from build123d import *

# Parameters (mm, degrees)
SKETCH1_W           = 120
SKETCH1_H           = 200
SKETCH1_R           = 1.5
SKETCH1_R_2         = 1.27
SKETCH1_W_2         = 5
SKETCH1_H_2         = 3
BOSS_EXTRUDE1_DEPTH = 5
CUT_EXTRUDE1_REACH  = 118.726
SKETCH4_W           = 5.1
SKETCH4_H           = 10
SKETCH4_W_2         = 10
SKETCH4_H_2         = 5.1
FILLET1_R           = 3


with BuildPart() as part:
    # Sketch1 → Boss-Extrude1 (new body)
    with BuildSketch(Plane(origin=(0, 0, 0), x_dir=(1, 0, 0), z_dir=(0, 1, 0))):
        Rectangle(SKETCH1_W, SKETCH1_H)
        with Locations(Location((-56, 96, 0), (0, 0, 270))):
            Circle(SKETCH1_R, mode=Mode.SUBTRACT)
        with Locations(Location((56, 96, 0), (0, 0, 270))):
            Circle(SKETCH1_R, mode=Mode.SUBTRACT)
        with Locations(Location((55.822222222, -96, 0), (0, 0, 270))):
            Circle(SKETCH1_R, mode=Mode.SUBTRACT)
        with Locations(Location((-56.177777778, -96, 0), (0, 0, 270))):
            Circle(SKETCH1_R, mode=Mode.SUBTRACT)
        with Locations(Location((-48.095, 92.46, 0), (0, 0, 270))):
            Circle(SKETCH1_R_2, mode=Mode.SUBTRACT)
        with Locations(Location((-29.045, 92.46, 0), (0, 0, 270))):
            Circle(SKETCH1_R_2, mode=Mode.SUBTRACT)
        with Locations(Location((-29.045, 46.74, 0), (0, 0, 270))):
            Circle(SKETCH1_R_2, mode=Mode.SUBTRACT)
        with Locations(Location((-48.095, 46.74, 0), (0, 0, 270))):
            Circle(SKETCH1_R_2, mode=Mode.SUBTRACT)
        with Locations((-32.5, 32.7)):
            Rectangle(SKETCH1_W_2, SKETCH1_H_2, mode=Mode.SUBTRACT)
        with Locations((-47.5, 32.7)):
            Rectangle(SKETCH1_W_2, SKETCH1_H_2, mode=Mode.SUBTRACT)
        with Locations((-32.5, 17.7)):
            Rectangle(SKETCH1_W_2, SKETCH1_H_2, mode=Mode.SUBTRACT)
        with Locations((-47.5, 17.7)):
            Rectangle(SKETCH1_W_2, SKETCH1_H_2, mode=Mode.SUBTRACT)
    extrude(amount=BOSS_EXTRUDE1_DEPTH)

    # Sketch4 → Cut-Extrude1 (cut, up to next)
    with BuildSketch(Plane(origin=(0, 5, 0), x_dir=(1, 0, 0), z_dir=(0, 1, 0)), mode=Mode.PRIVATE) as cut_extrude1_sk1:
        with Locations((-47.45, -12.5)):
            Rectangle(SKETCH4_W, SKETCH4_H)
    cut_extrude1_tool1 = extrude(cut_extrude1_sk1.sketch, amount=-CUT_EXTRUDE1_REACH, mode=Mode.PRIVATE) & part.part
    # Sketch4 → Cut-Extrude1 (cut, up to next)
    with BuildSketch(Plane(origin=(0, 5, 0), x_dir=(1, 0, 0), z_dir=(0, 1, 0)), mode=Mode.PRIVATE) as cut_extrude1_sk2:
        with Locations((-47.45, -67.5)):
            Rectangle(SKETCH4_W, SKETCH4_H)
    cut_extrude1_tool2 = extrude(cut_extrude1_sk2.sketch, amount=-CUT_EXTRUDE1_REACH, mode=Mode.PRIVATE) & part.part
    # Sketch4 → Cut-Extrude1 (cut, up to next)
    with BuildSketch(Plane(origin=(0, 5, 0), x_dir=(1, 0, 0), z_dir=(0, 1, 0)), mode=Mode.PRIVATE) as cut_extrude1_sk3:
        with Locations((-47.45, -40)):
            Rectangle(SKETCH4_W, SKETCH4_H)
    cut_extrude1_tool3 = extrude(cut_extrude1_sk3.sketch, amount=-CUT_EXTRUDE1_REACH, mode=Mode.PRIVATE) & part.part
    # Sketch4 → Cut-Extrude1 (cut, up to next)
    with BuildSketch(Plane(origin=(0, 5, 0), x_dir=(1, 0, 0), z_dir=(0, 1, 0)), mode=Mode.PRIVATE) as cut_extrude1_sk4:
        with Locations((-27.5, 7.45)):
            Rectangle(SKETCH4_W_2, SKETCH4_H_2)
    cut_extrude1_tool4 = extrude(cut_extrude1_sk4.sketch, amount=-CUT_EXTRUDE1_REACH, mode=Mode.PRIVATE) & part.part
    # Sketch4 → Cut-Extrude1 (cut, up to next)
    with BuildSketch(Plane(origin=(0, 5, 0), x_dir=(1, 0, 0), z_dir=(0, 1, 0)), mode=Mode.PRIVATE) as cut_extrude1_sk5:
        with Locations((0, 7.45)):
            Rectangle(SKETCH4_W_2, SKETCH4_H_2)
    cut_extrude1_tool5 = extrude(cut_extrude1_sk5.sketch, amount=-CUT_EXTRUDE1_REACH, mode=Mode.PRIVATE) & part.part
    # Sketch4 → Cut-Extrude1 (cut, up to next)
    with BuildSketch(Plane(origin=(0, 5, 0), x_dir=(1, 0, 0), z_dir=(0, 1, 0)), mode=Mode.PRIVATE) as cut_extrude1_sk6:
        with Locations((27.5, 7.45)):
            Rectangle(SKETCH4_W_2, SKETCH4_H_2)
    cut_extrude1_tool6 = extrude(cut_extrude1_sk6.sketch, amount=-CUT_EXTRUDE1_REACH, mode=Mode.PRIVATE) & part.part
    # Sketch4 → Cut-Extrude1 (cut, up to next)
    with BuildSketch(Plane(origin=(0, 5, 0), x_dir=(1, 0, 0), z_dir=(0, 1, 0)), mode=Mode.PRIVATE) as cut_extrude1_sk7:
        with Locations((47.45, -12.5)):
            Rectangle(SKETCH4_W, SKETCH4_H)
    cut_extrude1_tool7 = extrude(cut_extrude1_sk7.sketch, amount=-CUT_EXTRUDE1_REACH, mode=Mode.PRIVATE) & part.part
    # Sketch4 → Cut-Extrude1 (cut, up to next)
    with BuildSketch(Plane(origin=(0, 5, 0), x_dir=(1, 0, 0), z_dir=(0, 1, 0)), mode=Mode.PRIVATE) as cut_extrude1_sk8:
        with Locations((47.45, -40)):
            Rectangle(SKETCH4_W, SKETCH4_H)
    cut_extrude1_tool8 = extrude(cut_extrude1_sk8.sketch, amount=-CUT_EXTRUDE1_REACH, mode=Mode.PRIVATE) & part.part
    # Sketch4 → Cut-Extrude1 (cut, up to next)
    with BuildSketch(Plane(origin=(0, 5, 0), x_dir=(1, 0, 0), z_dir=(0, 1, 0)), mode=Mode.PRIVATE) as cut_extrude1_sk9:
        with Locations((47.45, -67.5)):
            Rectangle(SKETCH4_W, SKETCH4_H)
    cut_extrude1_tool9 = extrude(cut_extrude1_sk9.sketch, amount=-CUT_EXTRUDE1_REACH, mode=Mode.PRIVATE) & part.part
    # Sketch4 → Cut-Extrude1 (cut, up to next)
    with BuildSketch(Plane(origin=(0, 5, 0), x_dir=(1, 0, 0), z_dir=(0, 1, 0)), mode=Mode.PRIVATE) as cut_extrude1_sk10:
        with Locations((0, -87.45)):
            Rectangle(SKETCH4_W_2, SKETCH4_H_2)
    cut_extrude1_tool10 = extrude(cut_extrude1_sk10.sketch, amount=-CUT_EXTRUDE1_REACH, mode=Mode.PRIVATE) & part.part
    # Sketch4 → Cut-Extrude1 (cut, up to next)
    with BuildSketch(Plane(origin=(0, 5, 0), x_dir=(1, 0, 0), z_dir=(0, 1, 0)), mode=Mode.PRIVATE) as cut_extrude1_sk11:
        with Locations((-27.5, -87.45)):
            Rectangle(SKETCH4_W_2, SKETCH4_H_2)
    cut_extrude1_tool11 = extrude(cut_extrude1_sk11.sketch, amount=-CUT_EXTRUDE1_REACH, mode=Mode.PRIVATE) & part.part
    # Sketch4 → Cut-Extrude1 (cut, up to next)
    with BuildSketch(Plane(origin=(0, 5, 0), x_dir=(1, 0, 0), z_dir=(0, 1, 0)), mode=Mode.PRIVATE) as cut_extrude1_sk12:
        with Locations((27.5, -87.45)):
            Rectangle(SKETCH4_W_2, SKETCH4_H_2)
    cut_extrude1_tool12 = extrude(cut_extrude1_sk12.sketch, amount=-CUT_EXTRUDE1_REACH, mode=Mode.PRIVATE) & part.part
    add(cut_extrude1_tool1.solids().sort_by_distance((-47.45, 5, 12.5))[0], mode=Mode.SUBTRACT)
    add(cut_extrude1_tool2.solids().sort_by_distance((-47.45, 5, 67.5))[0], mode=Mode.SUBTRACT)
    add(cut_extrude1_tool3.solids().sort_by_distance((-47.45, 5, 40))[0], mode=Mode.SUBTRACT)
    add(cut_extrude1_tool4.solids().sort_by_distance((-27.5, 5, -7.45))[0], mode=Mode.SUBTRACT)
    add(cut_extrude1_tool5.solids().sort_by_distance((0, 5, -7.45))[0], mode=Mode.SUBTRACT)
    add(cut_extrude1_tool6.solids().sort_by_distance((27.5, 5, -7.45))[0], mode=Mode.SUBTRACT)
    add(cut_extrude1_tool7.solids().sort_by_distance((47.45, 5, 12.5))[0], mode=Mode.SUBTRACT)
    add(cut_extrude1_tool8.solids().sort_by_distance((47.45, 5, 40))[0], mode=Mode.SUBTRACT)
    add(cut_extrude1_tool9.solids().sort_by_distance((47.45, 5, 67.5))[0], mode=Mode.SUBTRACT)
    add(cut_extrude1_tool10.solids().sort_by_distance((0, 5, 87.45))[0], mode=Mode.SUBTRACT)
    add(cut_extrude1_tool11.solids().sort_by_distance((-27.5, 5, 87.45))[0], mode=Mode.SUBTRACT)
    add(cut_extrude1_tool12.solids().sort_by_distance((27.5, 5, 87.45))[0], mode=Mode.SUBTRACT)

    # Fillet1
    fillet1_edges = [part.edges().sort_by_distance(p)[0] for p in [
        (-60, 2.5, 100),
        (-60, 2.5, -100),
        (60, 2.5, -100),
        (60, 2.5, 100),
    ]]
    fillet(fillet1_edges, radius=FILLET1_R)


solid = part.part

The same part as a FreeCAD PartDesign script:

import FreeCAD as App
import Part
import Sketcher

V = App.Vector


def edges_at(feature, points):
    """Names of the edges that pass closest to the given points."""
    edges = feature.Shape.Edges
    near = lambda p: min(range(len(edges)), key=lambda i: edges[i].distToShape(Part.Vertex(*p))[0])
    return sorted({f"Edge{near(p) + 1}" for p in points})

doc = App.newDocument("Part")
body = doc.addObject("PartDesign::Body", "Body")

# Sketch on XZ plane
sketch1 = body.newObject("Sketcher::SketchObject", "Sketch")
sketch1.AttachmentSupport = (doc.getObject("XZ_Plane"), [""])
sketch1.MapMode = "FlatFace"
sketch1.addGeometry([
    Part.LineSegment(V(-60, -100, 0), V(-60, 100, 0)),  # 0
    Part.LineSegment(V(-60, 100, 0), V(60, 100, 0)),  # 1
    Part.LineSegment(V(60, 100, 0), V(60, -100, 0)),  # 2
    Part.LineSegment(V(60, -100, 0), V(-60, -100, 0)),  # 3
    Part.Circle(V(-56.2, 96, 0), V(0, 0, 1), 1.5),  # 4
    Part.Circle(V(55.8, 96, 0), V(0, 0, 1), 1.5),  # 5
    Part.LineSegment(V(-45, -16.2, 0), V(-50, -16.2, 0)),  # 6
    Part.LineSegment(V(-50, -16.2, 0), V(-50, -19.2, 0)),  # 7
    Part.LineSegment(V(-50, -19.2, 0), V(-45, -19.2, 0)),  # 8
    Part.LineSegment(V(-45, -19.2, 0), V(-45, -16.2, 0)),  # 9
    Part.LineSegment(V(-30, -16.2, 0), V(-35, -16.2, 0)),  # 10
    Part.LineSegment(V(-35, -16.2, 0), V(-35, -19.2, 0)),  # 11
    Part.LineSegment(V(-35, -19.2, 0), V(-30, -19.2, 0)),  # 12
    Part.LineSegment(V(-30, -19.2, 0), V(-30, -16.2, 0)),  # 13
    Part.LineSegment(V(-45, -31.2, 0), V(-50, -31.2, 0)),  # 14
    Part.LineSegment(V(-50, -31.2, 0), V(-50, -34.2, 0)),  # 15
    Part.LineSegment(V(-50, -34.2, 0), V(-45, -34.2, 0)),  # 16
    Part.LineSegment(V(-45, -34.2, 0), V(-45, -31.2, 0)),  # 17
    Part.Circle(V(-48.1, -46.7, 0), V(0, 0, 1), 1.3),  # 18
    Part.LineSegment(V(-30, -31.2, 0), V(-35, -31.2, 0)),  # 19
    Part.LineSegment(V(-35, -31.2, 0), V(-35, -34.2, 0)),  # 20
    Part.LineSegment(V(-35, -34.2, 0), V(-30, -34.2, 0)),  # 21
    Part.LineSegment(V(-30, -34.2, 0), V(-30, -31.2, 0)),  # 22
    Part.Circle(V(-29, -46.7, 0), V(0, 0, 1), 1.3),  # 23
    Part.Circle(V(-56, -96, 0), V(0, 0, 1), 1.5),  # 24
    Part.Circle(V(-48.1, -92.5, 0), V(0, 0, 1), 1.3),  # 25
    Part.Circle(V(-29, -92.5, 0), V(0, 0, 1), 1.3),  # 26
    Part.Circle(V(56, -96, 0), V(0, 0, 1), 1.5),  # 27
], False)
sketch1.addConstraint([
    Sketcher.Constraint("Coincident", 0, 2, 1, 1),
    Sketcher.Constraint("Coincident", 1, 2, 2, 1),
    Sketcher.Constraint("Coincident", 2, 2, 3, 1),
    Sketcher.Constraint("Coincident", 3, 2, 0, 1),
    Sketcher.Constraint("Coincident", 6, 2, 7, 1),
    Sketcher.Constraint("Coincident", 7, 2, 8, 1),
    Sketcher.Constraint("Coincident", 8, 2, 9, 1),
    Sketcher.Constraint("Coincident", 9, 2, 6, 1),
    Sketcher.Constraint("Coincident", 10, 2, 11, 1),
    Sketcher.Constraint("Coincident", 11, 2, 12, 1),
    Sketcher.Constraint("Coincident", 12, 2, 13, 1),
    Sketcher.Constraint("Coincident", 13, 2, 10, 1),
    Sketcher.Constraint("Coincident", 14, 2, 15, 1),
    Sketcher.Constraint("Coincident", 15, 2, 16, 1),
    Sketcher.Constraint("Coincident", 16, 2, 17, 1),
    Sketcher.Constraint("Coincident", 17, 2, 14, 1),
    Sketcher.Constraint("Coincident", 19, 2, 20, 1),
    Sketcher.Constraint("Coincident", 20, 2, 21, 1),
    Sketcher.Constraint("Coincident", 21, 2, 22, 1),
    Sketcher.Constraint("Coincident", 22, 2, 19, 1),
    Sketcher.Constraint("Vertical", 0),
    Sketcher.Constraint("Horizontal", 1),
    Sketcher.Constraint("Vertical", 2),
    Sketcher.Constraint("Horizontal", 3),
    Sketcher.Constraint("Horizontal", 6),
    Sketcher.Constraint("Vertical", 7),
    Sketcher.Constraint("Horizontal", 8),
    Sketcher.Constraint("Vertical", 9),
    Sketcher.Constraint("Horizontal", 10),
    Sketcher.Constraint("Vertical", 11),
    Sketcher.Constraint("Horizontal", 12),
    Sketcher.Constraint("Vertical", 13),
    Sketcher.Constraint("Horizontal", 14),
    Sketcher.Constraint("Vertical", 15),
    Sketcher.Constraint("Horizontal", 16),
    Sketcher.Constraint("Vertical", 17),
    Sketcher.Constraint("Horizontal", 19),
    Sketcher.Constraint("Vertical", 20),
    Sketcher.Constraint("Horizontal", 21),
    Sketcher.Constraint("Vertical", 22),
    Sketcher.Constraint("Equal", 4, 5),
    Sketcher.Constraint("Equal", 18, 23),
    Sketcher.Constraint("Equal", 5, 24),
    Sketcher.Constraint("Equal", 23, 25),
    Sketcher.Constraint("Equal", 25, 26),
    Sketcher.Constraint("Equal", 24, 27),
    Sketcher.Constraint("Symmetric", 0, 2, 2, 2, -1, 1),
    Sketcher.Constraint("Symmetric", 24, 3, 27, 3, -2),
    Sketcher.Constraint("Horizontal", 4, 3, 5, 3),
    Sketcher.Constraint("Horizontal", 18, 3, 23, 3),
    Sketcher.Constraint("Horizontal", 25, 3, 26, 3),
    Sketcher.Constraint("Horizontal", 9, 2, 10, 2),
    Sketcher.Constraint("Horizontal", 8, 2, 11, 2),
    Sketcher.Constraint("Horizontal", 17, 2, 19, 2),
    Sketcher.Constraint("Horizontal", 16, 2, 20, 2),
    Sketcher.Constraint("Vertical", 18, 3, 25, 3),
    Sketcher.Constraint("Vertical", 23, 3, 26, 3),
    Sketcher.Constraint("Vertical", 7, 2, 14, 2),
    Sketcher.Constraint("Vertical", 9, 2, 16, 2),
    Sketcher.Constraint("Vertical", 11, 2, 19, 2),
    Sketcher.Constraint("Vertical", 13, 2, 21, 2),
    Sketcher.Constraint("Equal", 8, 10),
    Sketcher.Constraint("Equal", 13, 15),
    Sketcher.Constraint("Diameter", 4, 3.0),
    Sketcher.Constraint("Diameter", 18, 2.54),
    Sketcher.Constraint("DistanceX", 1, 1, 1, 2, 120.0),
    Sketcher.Constraint("DistanceX", 6, 2, 6, 1, 5.0),
    Sketcher.Constraint("DistanceY", 0, 1, 0, 2, 200.0),
    Sketcher.Constraint("DistanceY", 7, 2, 7, 1, 3.0),
    Sketcher.Constraint("DistanceY", -1, 1, 4, 3, 96.0),
    Sketcher.Constraint("DistanceX", 24, 3, -1, 1, 56.0),
    Sketcher.Constraint("DistanceY", 24, 3, -1, 1, 96.0),
    Sketcher.Constraint("DistanceX", 6, 2, -1, 1, 50.0),
    Sketcher.Constraint("DistanceX", 10, 2, -1, 1, 35.0),
    Sketcher.Constraint("DistanceX", 4, 3, 5, 3, 112.0),
    Sketcher.Constraint("DistanceY", 14, 2, 7, 2, 12.0),
    Sketcher.Constraint("DistanceY", 6, 2, -1, 1, 16.2),
    Sketcher.Constraint("DistanceY", 18, 3, -1, 1, 46.74),
    Sketcher.Constraint("DistanceY", 25, 3, -1, 1, 92.46),
    Sketcher.Constraint("DistanceX", 18, 3, 23, 3, 19.05),
    Sketcher.Constraint("DistanceX", 18, 3, -1, 1, 48.095),
    Sketcher.Constraint("DistanceX", 4, 3, -1, 1, 56.177778),
])
pad1 = body.newObject("PartDesign::Pad", "Pad")
pad1.Profile = sketch1
pad1.Length = 5
pad1.Reversed = True

# Sketch on XZ plane
sketch2 = body.newObject("Sketcher::SketchObject", "Sketch001")
sketch2.AttachmentSupport = (doc.getObject("XZ_Plane"), [""])
sketch2.MapMode = "FlatFace"
sketch2.AttachmentOffset = App.Placement(V(0, 0, -5), App.Rotation())
sketch2.addGeometry([
    Part.LineSegment(V(-50, 8, 0), V(-50, 18, 0)),
    Part.LineSegment(V(-50, 18, 0), V(-45, 18, 0)),
    Part.LineSegment(V(-45, 18, 0), V(-45, 8, 0)),
    Part.LineSegment(V(-45, 8, 0), V(-50, 8, 0)),
], False)
sketch2.addConstraint([
    Sketcher.Constraint("Coincident", 0, 2, 1, 1),
    Sketcher.Constraint("Coincident", 1, 2, 2, 1),
    Sketcher.Constraint("Coincident", 2, 2, 3, 1),
    Sketcher.Constraint("Coincident", 3, 2, 0, 1),
    Sketcher.Constraint("Vertical", 0),
    Sketcher.Constraint("Horizontal", 1),
    Sketcher.Constraint("Vertical", 2),
    Sketcher.Constraint("Horizontal", 3),
    Sketcher.Constraint("DistanceY", 0, 1, 0, 2, 10.0),
    Sketcher.Constraint("DistanceX", 1, 1, 1, 2, 5.1),
    Sketcher.Constraint("DistanceX", 0, 2, -1, 1, 50.0),
    Sketcher.Constraint("DistanceY", -1, 1, 0, 2, 17.5),
])
pocket1 = body.newObject("PartDesign::Pocket", "Pocket")
pocket1.Profile = sketch2
pocket1.Type = "UpToFirst"
pocket1.Reversed = True

# Sketch on XZ plane
sketch3 = body.newObject("Sketcher::SketchObject", "Sketch002")
sketch3.AttachmentSupport = (doc.getObject("XZ_Plane"), [""])
sketch3.MapMode = "FlatFace"
sketch3.AttachmentOffset = App.Placement(V(0, 0, -5), App.Rotation())
sketch3.addGeometry([
    Part.LineSegment(V(-50, 62, 0), V(-50, 72, 0)),
    Part.LineSegment(V(-50, 72, 0), V(-45, 72, 0)),
    Part.LineSegment(V(-45, 72, 0), V(-45, 62, 0)),
    Part.LineSegment(V(-45, 62, 0), V(-50, 62, 0)),
], False)
sketch3.addConstraint([
    Sketcher.Constraint("Coincident", 0, 2, 1, 1),
    Sketcher.Constraint("Coincident", 1, 2, 2, 1),
    Sketcher.Constraint("Coincident", 2, 2, 3, 1),
    Sketcher.Constraint("Coincident", 3, 2, 0, 1),
    Sketcher.Constraint("Vertical", 0),
    Sketcher.Constraint("Horizontal", 1),
    Sketcher.Constraint("Vertical", 2),
    Sketcher.Constraint("Horizontal", 3),
    Sketcher.Constraint("DistanceY", 0, 1, 0, 2, 10.0),
    Sketcher.Constraint("DistanceX", 1, 1, 1, 2, 5.1),
    Sketcher.Constraint("DistanceX", 0, 2, -1, 1, 50.0),
    Sketcher.Constraint("DistanceY", -1, 1, 0, 2, 72.5),
])
pocket2 = body.newObject("PartDesign::Pocket", "Pocket001")
pocket2.Profile = sketch3
pocket2.Type = "UpToFirst"
pocket2.Reversed = True

# Sketch on XZ plane
sketch4 = body.newObject("Sketcher::SketchObject", "Sketch003")
sketch4.AttachmentSupport = (doc.getObject("XZ_Plane"), [""])
sketch4.MapMode = "FlatFace"
sketch4.AttachmentOffset = App.Placement(V(0, 0, -5), App.Rotation())
sketch4.addGeometry([
    Part.LineSegment(V(-50, 35, 0), V(-50, 45, 0)),
    Part.LineSegment(V(-50, 45, 0), V(-45, 45, 0)),
    Part.LineSegment(V(-45, 45, 0), V(-45, 35, 0)),
    Part.LineSegment(V(-45, 35, 0), V(-50, 35, 0)),
], False)
sketch4.addConstraint([
    Sketcher.Constraint("Coincident", 0, 2, 1, 1),
    Sketcher.Constraint("Coincident", 1, 2, 2, 1),
    Sketcher.Constraint("Coincident", 2, 2, 3, 1),
    Sketcher.Constraint("Coincident", 3, 2, 0, 1),
    Sketcher.Constraint("Vertical", 0),
    Sketcher.Constraint("Horizontal", 1),
    Sketcher.Constraint("Vertical", 2),
    Sketcher.Constraint("Horizontal", 3),
    Sketcher.Constraint("DistanceY", 0, 1, 0, 2, 10.0),
    Sketcher.Constraint("DistanceX", 1, 1, 1, 2, 5.1),
    Sketcher.Constraint("DistanceX", 0, 2, -1, 1, 50.0),
    Sketcher.Constraint("DistanceY", -1, 1, 0, 2, 45.0),
])
pocket3 = body.newObject("PartDesign::Pocket", "Pocket002")
pocket3.Profile = sketch4
pocket3.Type = "UpToFirst"
pocket3.Reversed = True

# Sketch on XZ plane
sketch5 = body.newObject("Sketcher::SketchObject", "Sketch004")
sketch5.AttachmentSupport = (doc.getObject("XZ_Plane"), [""])
sketch5.MapMode = "FlatFace"
sketch5.AttachmentOffset = App.Placement(V(0, 0, -5), App.Rotation())
sketch5.addGeometry([
    Part.LineSegment(V(-32, -10, 0), V(-32, -5, 0)),
    Part.LineSegment(V(-32, -5, 0), V(-22, -5, 0)),
    Part.LineSegment(V(-22, -5, 0), V(-22, -10, 0)),
    Part.LineSegment(V(-22, -10, 0), V(-32, -10, 0)),
], False)
sketch5.addConstraint([
    Sketcher.Constraint("Coincident", 0, 2, 1, 1),
    Sketcher.Constraint("Coincident", 1, 2, 2, 1),
    Sketcher.Constraint("Coincident", 2, 2, 3, 1),
    Sketcher.Constraint("Coincident", 3, 2, 0, 1),
    Sketcher.Constraint("Vertical", 0),
    Sketcher.Constraint("Horizontal", 1),
    Sketcher.Constraint("Vertical", 2),
    Sketcher.Constraint("Horizontal", 3),
    Sketcher.Constraint("DistanceX", 1, 1, 1, 2, 10.0),
    Sketcher.Constraint("DistanceY", 0, 1, 0, 2, 5.1),
    Sketcher.Constraint("DistanceY", 2, 2, -1, 1, 10.0),
    Sketcher.Constraint("DistanceX", 0, 2, -1, 1, 32.5),
])
pocket4 = body.newObject("PartDesign::Pocket", "Pocket003")
pocket4.Profile = sketch5
pocket4.Type = "UpToFirst"
pocket4.Reversed = True

# Sketch on XZ plane
sketch6 = body.newObject("Sketcher::SketchObject", "Sketch005")
sketch6.AttachmentSupport = (doc.getObject("XZ_Plane"), [""])
sketch6.MapMode = "FlatFace"
sketch6.AttachmentOffset = App.Placement(V(0, 0, -5), App.Rotation())
sketch6.addGeometry([
    Part.LineSegment(V(-5, -10, 0), V(-5, -5, 0)),
    Part.LineSegment(V(-5, -5, 0), V(5, -5, 0)),
    Part.LineSegment(V(5, -5, 0), V(5, -10, 0)),
    Part.LineSegment(V(5, -10, 0), V(-5, -10, 0)),
], False)
sketch6.addConstraint([
    Sketcher.Constraint("Coincident", 0, 2, 1, 1),
    Sketcher.Constraint("Coincident", 1, 2, 2, 1),
    Sketcher.Constraint("Coincident", 2, 2, 3, 1),
    Sketcher.Constraint("Coincident", 3, 2, 0, 1),
    Sketcher.Constraint("Vertical", 0),
    Sketcher.Constraint("Horizontal", 1),
    Sketcher.Constraint("Vertical", 2),
    Sketcher.Constraint("Horizontal", 3),
    Sketcher.Constraint("DistanceX", 1, 1, 1, 2, 10.0),
    Sketcher.Constraint("DistanceY", 0, 1, 0, 2, 5.1),
    Sketcher.Constraint("DistanceX", 0, 2, -1, 1, 5.0),
    Sketcher.Constraint("DistanceY", 2, 2, -1, 1, 10.0),
])
pocket5 = body.newObject("PartDesign::Pocket", "Pocket004")
pocket5.Profile = sketch6
pocket5.Type = "UpToFirst"
pocket5.Reversed = True

# Sketch on XZ plane
sketch7 = body.newObject("Sketcher::SketchObject", "Sketch006")
sketch7.AttachmentSupport = (doc.getObject("XZ_Plane"), [""])
sketch7.MapMode = "FlatFace"
sketch7.AttachmentOffset = App.Placement(V(0, 0, -5), App.Rotation())
sketch7.addGeometry([
    Part.LineSegment(V(22, -10, 0), V(22, -5, 0)),
    Part.LineSegment(V(22, -5, 0), V(32, -5, 0)),
    Part.LineSegment(V(32, -5, 0), V(32, -10, 0)),
    Part.LineSegment(V(32, -10, 0), V(22, -10, 0)),
], False)
sketch7.addConstraint([
    Sketcher.Constraint("Coincident", 0, 2, 1, 1),
    Sketcher.Constraint("Coincident", 1, 2, 2, 1),
    Sketcher.Constraint("Coincident", 2, 2, 3, 1),
    Sketcher.Constraint("Coincident", 3, 2, 0, 1),
    Sketcher.Constraint("Vertical", 0),
    Sketcher.Constraint("Horizontal", 1),
    Sketcher.Constraint("Vertical", 2),
    Sketcher.Constraint("Horizontal", 3),
    Sketcher.Constraint("DistanceX", 1, 1, 1, 2, 10.0),
    Sketcher.Constraint("DistanceY", 0, 1, 0, 2, 5.1),
    Sketcher.Constraint("DistanceY", 2, 2, -1, 1, 10.0),
    Sketcher.Constraint("DistanceX", -1, 1, 0, 2, 22.5),
])
pocket6 = body.newObject("PartDesign::Pocket", "Pocket005")
pocket6.Profile = sketch7
pocket6.Type = "UpToFirst"
pocket6.Reversed = True

# Sketch on XZ plane
sketch8 = body.newObject("Sketcher::SketchObject", "Sketch007")
sketch8.AttachmentSupport = (doc.getObject("XZ_Plane"), [""])
sketch8.MapMode = "FlatFace"
sketch8.AttachmentOffset = App.Placement(V(0, 0, -5), App.Rotation())
sketch8.addGeometry([
    Part.LineSegment(V(45, 8, 0), V(45, 18, 0)),
    Part.LineSegment(V(45, 18, 0), V(50, 18, 0)),
    Part.LineSegment(V(50, 18, 0), V(50, 8, 0)),
    Part.LineSegment(V(50, 8, 0), V(45, 8, 0)),
], False)
sketch8.addConstraint([
    Sketcher.Constraint("Coincident", 0, 2, 1, 1),
    Sketcher.Constraint("Coincident", 1, 2, 2, 1),
    Sketcher.Constraint("Coincident", 2, 2, 3, 1),
    Sketcher.Constraint("Coincident", 3, 2, 0, 1),
    Sketcher.Constraint("Vertical", 0),
    Sketcher.Constraint("Horizontal", 1),
    Sketcher.Constraint("Vertical", 2),
    Sketcher.Constraint("Horizontal", 3),
    Sketcher.Constraint("DistanceY", 0, 1, 0, 2, 10.0),
    Sketcher.Constraint("DistanceX", 1, 1, 1, 2, 5.1),
    Sketcher.Constraint("DistanceX", -1, 1, 1, 2, 50.0),
    Sketcher.Constraint("DistanceY", -1, 1, 0, 2, 17.5),
])
pocket7 = body.newObject("PartDesign::Pocket", "Pocket006")
pocket7.Profile = sketch8
pocket7.Type = "UpToFirst"
pocket7.Reversed = True

# Sketch on XZ plane
sketch9 = body.newObject("Sketcher::SketchObject", "Sketch008")
sketch9.AttachmentSupport = (doc.getObject("XZ_Plane"), [""])
sketch9.MapMode = "FlatFace"
sketch9.AttachmentOffset = App.Placement(V(0, 0, -5), App.Rotation())
sketch9.addGeometry([
    Part.LineSegment(V(45, 35, 0), V(45, 45, 0)),
    Part.LineSegment(V(45, 45, 0), V(50, 45, 0)),
    Part.LineSegment(V(50, 45, 0), V(50, 35, 0)),
    Part.LineSegment(V(50, 35, 0), V(45, 35, 0)),
], False)
sketch9.addConstraint([
    Sketcher.Constraint("Coincident", 0, 2, 1, 1),
    Sketcher.Constraint("Coincident", 1, 2, 2, 1),
    Sketcher.Constraint("Coincident", 2, 2, 3, 1),
    Sketcher.Constraint("Coincident", 3, 2, 0, 1),
    Sketcher.Constraint("Vertical", 0),
    Sketcher.Constraint("Horizontal", 1),
    Sketcher.Constraint("Vertical", 2),
    Sketcher.Constraint("Horizontal", 3),
    Sketcher.Constraint("DistanceY", 0, 1, 0, 2, 10.0),
    Sketcher.Constraint("DistanceX", 1, 1, 1, 2, 5.1),
    Sketcher.Constraint("DistanceY", -1, 1, 0, 2, 45.0),
    Sketcher.Constraint("DistanceX", -1, 1, 1, 2, 50.0),
])
pocket8 = body.newObject("PartDesign::Pocket", "Pocket007")
pocket8.Profile = sketch9
pocket8.Type = "UpToFirst"
pocket8.Reversed = True

# Sketch on XZ plane
sketch10 = body.newObject("Sketcher::SketchObject", "Sketch009")
sketch10.AttachmentSupport = (doc.getObject("XZ_Plane"), [""])
sketch10.MapMode = "FlatFace"
sketch10.AttachmentOffset = App.Placement(V(0, 0, -5), App.Rotation())
sketch10.addGeometry([
    Part.LineSegment(V(45, 62, 0), V(45, 72, 0)),
    Part.LineSegment(V(45, 72, 0), V(50, 72, 0)),
    Part.LineSegment(V(50, 72, 0), V(50, 62, 0)),
    Part.LineSegment(V(50, 62, 0), V(45, 62, 0)),
], False)
sketch10.addConstraint([
    Sketcher.Constraint("Coincident", 0, 2, 1, 1),
    Sketcher.Constraint("Coincident", 1, 2, 2, 1),
    Sketcher.Constraint("Coincident", 2, 2, 3, 1),
    Sketcher.Constraint("Coincident", 3, 2, 0, 1),
    Sketcher.Constraint("Vertical", 0),
    Sketcher.Constraint("Horizontal", 1),
    Sketcher.Constraint("Vertical", 2),
    Sketcher.Constraint("Horizontal", 3),
    Sketcher.Constraint("DistanceY", 0, 1, 0, 2, 10.0),
    Sketcher.Constraint("DistanceX", 1, 1, 1, 2, 5.1),
    Sketcher.Constraint("DistanceX", -1, 1, 1, 2, 50.0),
    Sketcher.Constraint("DistanceY", -1, 1, 0, 2, 72.5),
])
pocket9 = body.newObject("PartDesign::Pocket", "Pocket008")
pocket9.Profile = sketch10
pocket9.Type = "UpToFirst"
pocket9.Reversed = True

# Sketch on XZ plane
sketch11 = body.newObject("Sketcher::SketchObject", "Sketch010")
sketch11.AttachmentSupport = (doc.getObject("XZ_Plane"), [""])
sketch11.MapMode = "FlatFace"
sketch11.AttachmentOffset = App.Placement(V(0, 0, -5), App.Rotation())
sketch11.addGeometry([
    Part.LineSegment(V(-5, 85, 0), V(-5, 90, 0)),
    Part.LineSegment(V(-5, 90, 0), V(5, 90, 0)),
    Part.LineSegment(V(5, 90, 0), V(5, 85, 0)),
    Part.LineSegment(V(5, 85, 0), V(-5, 85, 0)),
], False)
sketch11.addConstraint([
    Sketcher.Constraint("Coincident", 0, 2, 1, 1),
    Sketcher.Constraint("Coincident", 1, 2, 2, 1),
    Sketcher.Constraint("Coincident", 2, 2, 3, 1),
    Sketcher.Constraint("Coincident", 3, 2, 0, 1),
    Sketcher.Constraint("Vertical", 0),
    Sketcher.Constraint("Horizontal", 1),
    Sketcher.Constraint("Vertical", 2),
    Sketcher.Constraint("Horizontal", 3),
    Sketcher.Constraint("DistanceX", 1, 1, 1, 2, 10.0),
    Sketcher.Constraint("DistanceY", 0, 1, 0, 2, 5.1),
    Sketcher.Constraint("DistanceX", 0, 2, -1, 1, 5.0),
    Sketcher.Constraint("DistanceY", -1, 1, 0, 2, 90.0),
])
pocket10 = body.newObject("PartDesign::Pocket", "Pocket009")
pocket10.Profile = sketch11
pocket10.Type = "UpToFirst"
pocket10.Reversed = True

# Sketch on XZ plane
sketch12 = body.newObject("Sketcher::SketchObject", "Sketch011")
sketch12.AttachmentSupport = (doc.getObject("XZ_Plane"), [""])
sketch12.MapMode = "FlatFace"
sketch12.AttachmentOffset = App.Placement(V(0, 0, -5), App.Rotation())
sketch12.addGeometry([
    Part.LineSegment(V(-32, 85, 0), V(-32, 90, 0)),
    Part.LineSegment(V(-32, 90, 0), V(-22, 90, 0)),
    Part.LineSegment(V(-22, 90, 0), V(-22, 85, 0)),
    Part.LineSegment(V(-22, 85, 0), V(-32, 85, 0)),
], False)
sketch12.addConstraint([
    Sketcher.Constraint("Coincident", 0, 2, 1, 1),
    Sketcher.Constraint("Coincident", 1, 2, 2, 1),
    Sketcher.Constraint("Coincident", 2, 2, 3, 1),
    Sketcher.Constraint("Coincident", 3, 2, 0, 1),
    Sketcher.Constraint("Vertical", 0),
    Sketcher.Constraint("Horizontal", 1),
    Sketcher.Constraint("Vertical", 2),
    Sketcher.Constraint("Horizontal", 3),
    Sketcher.Constraint("DistanceX", 1, 1, 1, 2, 10.0),
    Sketcher.Constraint("DistanceY", 0, 1, 0, 2, 5.1),
    Sketcher.Constraint("DistanceY", -1, 1, 0, 2, 90.0),
    Sketcher.Constraint("DistanceX", 0, 2, -1, 1, 32.5),
])
pocket11 = body.newObject("PartDesign::Pocket", "Pocket010")
pocket11.Profile = sketch12
pocket11.Type = "UpToFirst"
pocket11.Reversed = True

# Sketch on XZ plane
sketch13 = body.newObject("Sketcher::SketchObject", "Sketch012")
sketch13.AttachmentSupport = (doc.getObject("XZ_Plane"), [""])
sketch13.MapMode = "FlatFace"
sketch13.AttachmentOffset = App.Placement(V(0, 0, -5), App.Rotation())
sketch13.addGeometry([
    Part.LineSegment(V(22, 85, 0), V(22, 90, 0)),
    Part.LineSegment(V(22, 90, 0), V(32, 90, 0)),
    Part.LineSegment(V(32, 90, 0), V(32, 85, 0)),
    Part.LineSegment(V(32, 85, 0), V(22, 85, 0)),
], False)
sketch13.addConstraint([
    Sketcher.Constraint("Coincident", 0, 2, 1, 1),
    Sketcher.Constraint("Coincident", 1, 2, 2, 1),
    Sketcher.Constraint("Coincident", 2, 2, 3, 1),
    Sketcher.Constraint("Coincident", 3, 2, 0, 1),
    Sketcher.Constraint("Vertical", 0),
    Sketcher.Constraint("Horizontal", 1),
    Sketcher.Constraint("Vertical", 2),
    Sketcher.Constraint("Horizontal", 3),
    Sketcher.Constraint("DistanceX", 1, 1, 1, 2, 10.0),
    Sketcher.Constraint("DistanceY", 0, 1, 0, 2, 5.1),
    Sketcher.Constraint("DistanceY", -1, 1, 0, 2, 90.0),
    Sketcher.Constraint("DistanceX", -1, 1, 0, 2, 22.5),
])
pocket12 = body.newObject("PartDesign::Pocket", "Pocket011")
pocket12.Profile = sketch13
pocket12.Type = "UpToFirst"
pocket12.Reversed = True
doc.recompute()

fillet = body.newObject("PartDesign::Fillet", "Fillet")
fillet.Base = (pocket12, edges_at(pocket12, [
    (-60, 2.5, 100),
    (-60, 2.5, -100),
    (60, 2.5, -100),
    (60, 2.5, 100),
]))
fillet.Radius = 3

doc.recompute()
